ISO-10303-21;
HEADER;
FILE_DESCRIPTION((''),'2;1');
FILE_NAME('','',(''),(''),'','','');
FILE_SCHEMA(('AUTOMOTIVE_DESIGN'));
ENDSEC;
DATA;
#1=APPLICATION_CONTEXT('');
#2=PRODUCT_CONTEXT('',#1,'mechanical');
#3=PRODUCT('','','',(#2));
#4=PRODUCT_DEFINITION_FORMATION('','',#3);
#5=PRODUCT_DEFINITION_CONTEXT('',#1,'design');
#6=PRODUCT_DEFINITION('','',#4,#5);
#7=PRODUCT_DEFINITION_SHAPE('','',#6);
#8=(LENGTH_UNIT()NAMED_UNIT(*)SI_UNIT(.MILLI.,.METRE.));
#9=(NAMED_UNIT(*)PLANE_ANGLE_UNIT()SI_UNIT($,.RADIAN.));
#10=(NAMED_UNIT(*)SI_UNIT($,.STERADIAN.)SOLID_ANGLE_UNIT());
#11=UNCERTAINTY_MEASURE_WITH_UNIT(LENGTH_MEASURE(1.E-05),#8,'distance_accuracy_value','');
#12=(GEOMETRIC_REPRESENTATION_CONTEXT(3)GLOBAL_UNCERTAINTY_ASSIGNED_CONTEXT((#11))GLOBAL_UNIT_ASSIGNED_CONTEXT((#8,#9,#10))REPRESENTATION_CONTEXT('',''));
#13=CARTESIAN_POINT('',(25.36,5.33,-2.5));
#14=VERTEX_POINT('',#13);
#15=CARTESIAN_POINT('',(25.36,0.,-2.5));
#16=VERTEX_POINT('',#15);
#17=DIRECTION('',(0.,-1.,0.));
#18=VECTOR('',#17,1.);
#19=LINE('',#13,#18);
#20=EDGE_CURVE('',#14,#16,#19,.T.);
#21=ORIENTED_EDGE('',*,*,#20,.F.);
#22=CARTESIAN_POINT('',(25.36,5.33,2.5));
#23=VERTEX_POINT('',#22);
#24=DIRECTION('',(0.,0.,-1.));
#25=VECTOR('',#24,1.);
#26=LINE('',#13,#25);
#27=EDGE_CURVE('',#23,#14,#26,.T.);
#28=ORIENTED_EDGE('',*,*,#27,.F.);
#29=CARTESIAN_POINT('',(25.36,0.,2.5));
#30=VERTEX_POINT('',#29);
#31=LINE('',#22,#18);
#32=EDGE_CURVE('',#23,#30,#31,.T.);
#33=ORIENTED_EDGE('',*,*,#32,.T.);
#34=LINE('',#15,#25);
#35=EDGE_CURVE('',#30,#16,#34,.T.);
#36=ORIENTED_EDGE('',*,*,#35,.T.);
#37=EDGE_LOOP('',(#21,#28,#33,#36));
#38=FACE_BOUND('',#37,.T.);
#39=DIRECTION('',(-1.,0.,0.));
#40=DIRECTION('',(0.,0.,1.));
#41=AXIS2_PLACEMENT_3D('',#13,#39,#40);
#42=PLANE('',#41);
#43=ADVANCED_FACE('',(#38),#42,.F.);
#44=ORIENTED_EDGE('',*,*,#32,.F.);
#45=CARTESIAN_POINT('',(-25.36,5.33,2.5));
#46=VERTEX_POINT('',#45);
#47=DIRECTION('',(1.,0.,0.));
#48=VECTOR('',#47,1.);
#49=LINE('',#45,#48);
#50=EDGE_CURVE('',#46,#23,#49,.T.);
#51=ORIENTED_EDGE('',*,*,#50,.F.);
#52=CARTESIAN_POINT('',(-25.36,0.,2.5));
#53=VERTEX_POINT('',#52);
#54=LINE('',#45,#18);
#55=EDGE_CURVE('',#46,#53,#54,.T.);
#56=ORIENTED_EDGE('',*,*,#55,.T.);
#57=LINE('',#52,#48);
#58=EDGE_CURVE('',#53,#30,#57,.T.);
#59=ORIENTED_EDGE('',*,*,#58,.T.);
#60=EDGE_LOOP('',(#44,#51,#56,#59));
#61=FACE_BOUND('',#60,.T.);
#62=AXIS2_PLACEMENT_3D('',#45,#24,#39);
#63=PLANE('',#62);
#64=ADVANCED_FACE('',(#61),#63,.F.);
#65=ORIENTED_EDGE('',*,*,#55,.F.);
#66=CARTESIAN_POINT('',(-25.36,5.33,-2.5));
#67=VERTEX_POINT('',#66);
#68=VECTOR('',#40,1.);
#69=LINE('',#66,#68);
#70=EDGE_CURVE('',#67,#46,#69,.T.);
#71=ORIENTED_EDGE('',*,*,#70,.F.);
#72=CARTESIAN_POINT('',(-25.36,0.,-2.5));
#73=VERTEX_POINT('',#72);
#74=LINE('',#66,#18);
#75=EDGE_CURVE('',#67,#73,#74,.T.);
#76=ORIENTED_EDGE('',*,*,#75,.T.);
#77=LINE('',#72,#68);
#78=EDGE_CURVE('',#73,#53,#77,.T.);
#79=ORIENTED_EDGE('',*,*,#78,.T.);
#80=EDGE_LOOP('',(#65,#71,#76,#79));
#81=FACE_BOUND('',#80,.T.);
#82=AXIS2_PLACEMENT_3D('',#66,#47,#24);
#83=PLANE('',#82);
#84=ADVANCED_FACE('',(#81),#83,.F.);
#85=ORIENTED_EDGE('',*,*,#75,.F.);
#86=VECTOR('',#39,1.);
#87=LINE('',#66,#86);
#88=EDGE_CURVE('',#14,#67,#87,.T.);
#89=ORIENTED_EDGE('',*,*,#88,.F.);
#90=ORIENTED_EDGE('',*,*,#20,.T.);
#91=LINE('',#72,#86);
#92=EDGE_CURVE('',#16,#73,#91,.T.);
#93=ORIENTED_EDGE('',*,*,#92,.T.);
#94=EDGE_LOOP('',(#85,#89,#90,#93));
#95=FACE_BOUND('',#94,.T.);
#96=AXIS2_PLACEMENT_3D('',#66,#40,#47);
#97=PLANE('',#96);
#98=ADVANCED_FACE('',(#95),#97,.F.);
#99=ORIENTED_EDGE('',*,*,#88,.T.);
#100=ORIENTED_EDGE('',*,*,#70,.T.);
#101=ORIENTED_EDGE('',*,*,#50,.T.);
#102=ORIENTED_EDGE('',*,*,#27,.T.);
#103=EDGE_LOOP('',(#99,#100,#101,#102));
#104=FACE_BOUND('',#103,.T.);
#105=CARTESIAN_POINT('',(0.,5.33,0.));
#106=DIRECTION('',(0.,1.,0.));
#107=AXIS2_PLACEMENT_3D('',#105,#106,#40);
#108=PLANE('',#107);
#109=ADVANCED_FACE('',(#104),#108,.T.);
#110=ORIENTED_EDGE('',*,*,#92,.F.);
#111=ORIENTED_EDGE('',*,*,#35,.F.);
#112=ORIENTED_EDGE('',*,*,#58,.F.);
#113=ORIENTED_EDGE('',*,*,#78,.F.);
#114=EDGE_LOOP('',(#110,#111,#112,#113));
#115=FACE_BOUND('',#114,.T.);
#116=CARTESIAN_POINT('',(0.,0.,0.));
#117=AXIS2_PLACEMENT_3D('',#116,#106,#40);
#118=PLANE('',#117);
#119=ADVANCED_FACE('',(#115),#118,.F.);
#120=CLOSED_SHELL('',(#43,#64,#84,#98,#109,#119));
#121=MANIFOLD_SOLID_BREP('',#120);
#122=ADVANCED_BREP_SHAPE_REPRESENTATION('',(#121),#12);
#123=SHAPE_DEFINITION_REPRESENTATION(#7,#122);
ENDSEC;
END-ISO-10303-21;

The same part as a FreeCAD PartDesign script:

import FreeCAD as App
import Part
import Sketcher
Q = App.Units.Quantity


def add_polygon(sketch, points):
    """Adds a closed chain of lines whose ends are joined by coincident constraints."""
    first, n = sketch.GeometryCount, len(points)
    for a, b in zip(points, points[1:] + points[:1]):
        sketch.addGeometry(Part.LineSegment(App.Vector(*a, 0), App.Vector(*b, 0)), False)
    for i in range(n):
        sketch.addConstraint(Sketcher.Constraint("Coincident", first + i, 2, first + (i + 1) % n, 1))

doc = App.newDocument("Part")
body = doc.addObject("PartDesign::Body", "Body")

sketch1 = body.newObject("Sketcher::SketchObject", "Sketch")
sketch1.AttachmentSupport = (doc.getObject("XZ_Plane"), [""])
sketch1.MapMode = "FlatFace"
add_polygon(sketch1, [(-25.36, -2.5), (-25.36, 2.5), (25.36, 2.5), (25.36, -2.5)])
sketch1.addConstraint(Sketcher.Constraint("Vertical", 0))
sketch1.addConstraint(Sketcher.Constraint("Horizontal", 1))
sketch1.addConstraint(Sketcher.Constraint("Vertical", 2))
sketch1.addConstraint(Sketcher.Constraint("Horizontal", 3))
sketch1.addConstraint(Sketcher.Constraint("Symmetric", 0, 2, 2, 2, -1, 1))
sketch1.addConstraint(Sketcher.Constraint("DistanceY", 0, 1, 0, 2, Q("5 mm")))
sketch1.addConstraint(Sketcher.Constraint("DistanceX", 1, 1, 1, 2, Q("50.72 mm")))
pad1 = body.newObject("PartDesign::Pad", "Pad")
pad1.Profile = sketch1
pad1.Length = 5.33
pad1.Reversed = True

doc.recompute()
